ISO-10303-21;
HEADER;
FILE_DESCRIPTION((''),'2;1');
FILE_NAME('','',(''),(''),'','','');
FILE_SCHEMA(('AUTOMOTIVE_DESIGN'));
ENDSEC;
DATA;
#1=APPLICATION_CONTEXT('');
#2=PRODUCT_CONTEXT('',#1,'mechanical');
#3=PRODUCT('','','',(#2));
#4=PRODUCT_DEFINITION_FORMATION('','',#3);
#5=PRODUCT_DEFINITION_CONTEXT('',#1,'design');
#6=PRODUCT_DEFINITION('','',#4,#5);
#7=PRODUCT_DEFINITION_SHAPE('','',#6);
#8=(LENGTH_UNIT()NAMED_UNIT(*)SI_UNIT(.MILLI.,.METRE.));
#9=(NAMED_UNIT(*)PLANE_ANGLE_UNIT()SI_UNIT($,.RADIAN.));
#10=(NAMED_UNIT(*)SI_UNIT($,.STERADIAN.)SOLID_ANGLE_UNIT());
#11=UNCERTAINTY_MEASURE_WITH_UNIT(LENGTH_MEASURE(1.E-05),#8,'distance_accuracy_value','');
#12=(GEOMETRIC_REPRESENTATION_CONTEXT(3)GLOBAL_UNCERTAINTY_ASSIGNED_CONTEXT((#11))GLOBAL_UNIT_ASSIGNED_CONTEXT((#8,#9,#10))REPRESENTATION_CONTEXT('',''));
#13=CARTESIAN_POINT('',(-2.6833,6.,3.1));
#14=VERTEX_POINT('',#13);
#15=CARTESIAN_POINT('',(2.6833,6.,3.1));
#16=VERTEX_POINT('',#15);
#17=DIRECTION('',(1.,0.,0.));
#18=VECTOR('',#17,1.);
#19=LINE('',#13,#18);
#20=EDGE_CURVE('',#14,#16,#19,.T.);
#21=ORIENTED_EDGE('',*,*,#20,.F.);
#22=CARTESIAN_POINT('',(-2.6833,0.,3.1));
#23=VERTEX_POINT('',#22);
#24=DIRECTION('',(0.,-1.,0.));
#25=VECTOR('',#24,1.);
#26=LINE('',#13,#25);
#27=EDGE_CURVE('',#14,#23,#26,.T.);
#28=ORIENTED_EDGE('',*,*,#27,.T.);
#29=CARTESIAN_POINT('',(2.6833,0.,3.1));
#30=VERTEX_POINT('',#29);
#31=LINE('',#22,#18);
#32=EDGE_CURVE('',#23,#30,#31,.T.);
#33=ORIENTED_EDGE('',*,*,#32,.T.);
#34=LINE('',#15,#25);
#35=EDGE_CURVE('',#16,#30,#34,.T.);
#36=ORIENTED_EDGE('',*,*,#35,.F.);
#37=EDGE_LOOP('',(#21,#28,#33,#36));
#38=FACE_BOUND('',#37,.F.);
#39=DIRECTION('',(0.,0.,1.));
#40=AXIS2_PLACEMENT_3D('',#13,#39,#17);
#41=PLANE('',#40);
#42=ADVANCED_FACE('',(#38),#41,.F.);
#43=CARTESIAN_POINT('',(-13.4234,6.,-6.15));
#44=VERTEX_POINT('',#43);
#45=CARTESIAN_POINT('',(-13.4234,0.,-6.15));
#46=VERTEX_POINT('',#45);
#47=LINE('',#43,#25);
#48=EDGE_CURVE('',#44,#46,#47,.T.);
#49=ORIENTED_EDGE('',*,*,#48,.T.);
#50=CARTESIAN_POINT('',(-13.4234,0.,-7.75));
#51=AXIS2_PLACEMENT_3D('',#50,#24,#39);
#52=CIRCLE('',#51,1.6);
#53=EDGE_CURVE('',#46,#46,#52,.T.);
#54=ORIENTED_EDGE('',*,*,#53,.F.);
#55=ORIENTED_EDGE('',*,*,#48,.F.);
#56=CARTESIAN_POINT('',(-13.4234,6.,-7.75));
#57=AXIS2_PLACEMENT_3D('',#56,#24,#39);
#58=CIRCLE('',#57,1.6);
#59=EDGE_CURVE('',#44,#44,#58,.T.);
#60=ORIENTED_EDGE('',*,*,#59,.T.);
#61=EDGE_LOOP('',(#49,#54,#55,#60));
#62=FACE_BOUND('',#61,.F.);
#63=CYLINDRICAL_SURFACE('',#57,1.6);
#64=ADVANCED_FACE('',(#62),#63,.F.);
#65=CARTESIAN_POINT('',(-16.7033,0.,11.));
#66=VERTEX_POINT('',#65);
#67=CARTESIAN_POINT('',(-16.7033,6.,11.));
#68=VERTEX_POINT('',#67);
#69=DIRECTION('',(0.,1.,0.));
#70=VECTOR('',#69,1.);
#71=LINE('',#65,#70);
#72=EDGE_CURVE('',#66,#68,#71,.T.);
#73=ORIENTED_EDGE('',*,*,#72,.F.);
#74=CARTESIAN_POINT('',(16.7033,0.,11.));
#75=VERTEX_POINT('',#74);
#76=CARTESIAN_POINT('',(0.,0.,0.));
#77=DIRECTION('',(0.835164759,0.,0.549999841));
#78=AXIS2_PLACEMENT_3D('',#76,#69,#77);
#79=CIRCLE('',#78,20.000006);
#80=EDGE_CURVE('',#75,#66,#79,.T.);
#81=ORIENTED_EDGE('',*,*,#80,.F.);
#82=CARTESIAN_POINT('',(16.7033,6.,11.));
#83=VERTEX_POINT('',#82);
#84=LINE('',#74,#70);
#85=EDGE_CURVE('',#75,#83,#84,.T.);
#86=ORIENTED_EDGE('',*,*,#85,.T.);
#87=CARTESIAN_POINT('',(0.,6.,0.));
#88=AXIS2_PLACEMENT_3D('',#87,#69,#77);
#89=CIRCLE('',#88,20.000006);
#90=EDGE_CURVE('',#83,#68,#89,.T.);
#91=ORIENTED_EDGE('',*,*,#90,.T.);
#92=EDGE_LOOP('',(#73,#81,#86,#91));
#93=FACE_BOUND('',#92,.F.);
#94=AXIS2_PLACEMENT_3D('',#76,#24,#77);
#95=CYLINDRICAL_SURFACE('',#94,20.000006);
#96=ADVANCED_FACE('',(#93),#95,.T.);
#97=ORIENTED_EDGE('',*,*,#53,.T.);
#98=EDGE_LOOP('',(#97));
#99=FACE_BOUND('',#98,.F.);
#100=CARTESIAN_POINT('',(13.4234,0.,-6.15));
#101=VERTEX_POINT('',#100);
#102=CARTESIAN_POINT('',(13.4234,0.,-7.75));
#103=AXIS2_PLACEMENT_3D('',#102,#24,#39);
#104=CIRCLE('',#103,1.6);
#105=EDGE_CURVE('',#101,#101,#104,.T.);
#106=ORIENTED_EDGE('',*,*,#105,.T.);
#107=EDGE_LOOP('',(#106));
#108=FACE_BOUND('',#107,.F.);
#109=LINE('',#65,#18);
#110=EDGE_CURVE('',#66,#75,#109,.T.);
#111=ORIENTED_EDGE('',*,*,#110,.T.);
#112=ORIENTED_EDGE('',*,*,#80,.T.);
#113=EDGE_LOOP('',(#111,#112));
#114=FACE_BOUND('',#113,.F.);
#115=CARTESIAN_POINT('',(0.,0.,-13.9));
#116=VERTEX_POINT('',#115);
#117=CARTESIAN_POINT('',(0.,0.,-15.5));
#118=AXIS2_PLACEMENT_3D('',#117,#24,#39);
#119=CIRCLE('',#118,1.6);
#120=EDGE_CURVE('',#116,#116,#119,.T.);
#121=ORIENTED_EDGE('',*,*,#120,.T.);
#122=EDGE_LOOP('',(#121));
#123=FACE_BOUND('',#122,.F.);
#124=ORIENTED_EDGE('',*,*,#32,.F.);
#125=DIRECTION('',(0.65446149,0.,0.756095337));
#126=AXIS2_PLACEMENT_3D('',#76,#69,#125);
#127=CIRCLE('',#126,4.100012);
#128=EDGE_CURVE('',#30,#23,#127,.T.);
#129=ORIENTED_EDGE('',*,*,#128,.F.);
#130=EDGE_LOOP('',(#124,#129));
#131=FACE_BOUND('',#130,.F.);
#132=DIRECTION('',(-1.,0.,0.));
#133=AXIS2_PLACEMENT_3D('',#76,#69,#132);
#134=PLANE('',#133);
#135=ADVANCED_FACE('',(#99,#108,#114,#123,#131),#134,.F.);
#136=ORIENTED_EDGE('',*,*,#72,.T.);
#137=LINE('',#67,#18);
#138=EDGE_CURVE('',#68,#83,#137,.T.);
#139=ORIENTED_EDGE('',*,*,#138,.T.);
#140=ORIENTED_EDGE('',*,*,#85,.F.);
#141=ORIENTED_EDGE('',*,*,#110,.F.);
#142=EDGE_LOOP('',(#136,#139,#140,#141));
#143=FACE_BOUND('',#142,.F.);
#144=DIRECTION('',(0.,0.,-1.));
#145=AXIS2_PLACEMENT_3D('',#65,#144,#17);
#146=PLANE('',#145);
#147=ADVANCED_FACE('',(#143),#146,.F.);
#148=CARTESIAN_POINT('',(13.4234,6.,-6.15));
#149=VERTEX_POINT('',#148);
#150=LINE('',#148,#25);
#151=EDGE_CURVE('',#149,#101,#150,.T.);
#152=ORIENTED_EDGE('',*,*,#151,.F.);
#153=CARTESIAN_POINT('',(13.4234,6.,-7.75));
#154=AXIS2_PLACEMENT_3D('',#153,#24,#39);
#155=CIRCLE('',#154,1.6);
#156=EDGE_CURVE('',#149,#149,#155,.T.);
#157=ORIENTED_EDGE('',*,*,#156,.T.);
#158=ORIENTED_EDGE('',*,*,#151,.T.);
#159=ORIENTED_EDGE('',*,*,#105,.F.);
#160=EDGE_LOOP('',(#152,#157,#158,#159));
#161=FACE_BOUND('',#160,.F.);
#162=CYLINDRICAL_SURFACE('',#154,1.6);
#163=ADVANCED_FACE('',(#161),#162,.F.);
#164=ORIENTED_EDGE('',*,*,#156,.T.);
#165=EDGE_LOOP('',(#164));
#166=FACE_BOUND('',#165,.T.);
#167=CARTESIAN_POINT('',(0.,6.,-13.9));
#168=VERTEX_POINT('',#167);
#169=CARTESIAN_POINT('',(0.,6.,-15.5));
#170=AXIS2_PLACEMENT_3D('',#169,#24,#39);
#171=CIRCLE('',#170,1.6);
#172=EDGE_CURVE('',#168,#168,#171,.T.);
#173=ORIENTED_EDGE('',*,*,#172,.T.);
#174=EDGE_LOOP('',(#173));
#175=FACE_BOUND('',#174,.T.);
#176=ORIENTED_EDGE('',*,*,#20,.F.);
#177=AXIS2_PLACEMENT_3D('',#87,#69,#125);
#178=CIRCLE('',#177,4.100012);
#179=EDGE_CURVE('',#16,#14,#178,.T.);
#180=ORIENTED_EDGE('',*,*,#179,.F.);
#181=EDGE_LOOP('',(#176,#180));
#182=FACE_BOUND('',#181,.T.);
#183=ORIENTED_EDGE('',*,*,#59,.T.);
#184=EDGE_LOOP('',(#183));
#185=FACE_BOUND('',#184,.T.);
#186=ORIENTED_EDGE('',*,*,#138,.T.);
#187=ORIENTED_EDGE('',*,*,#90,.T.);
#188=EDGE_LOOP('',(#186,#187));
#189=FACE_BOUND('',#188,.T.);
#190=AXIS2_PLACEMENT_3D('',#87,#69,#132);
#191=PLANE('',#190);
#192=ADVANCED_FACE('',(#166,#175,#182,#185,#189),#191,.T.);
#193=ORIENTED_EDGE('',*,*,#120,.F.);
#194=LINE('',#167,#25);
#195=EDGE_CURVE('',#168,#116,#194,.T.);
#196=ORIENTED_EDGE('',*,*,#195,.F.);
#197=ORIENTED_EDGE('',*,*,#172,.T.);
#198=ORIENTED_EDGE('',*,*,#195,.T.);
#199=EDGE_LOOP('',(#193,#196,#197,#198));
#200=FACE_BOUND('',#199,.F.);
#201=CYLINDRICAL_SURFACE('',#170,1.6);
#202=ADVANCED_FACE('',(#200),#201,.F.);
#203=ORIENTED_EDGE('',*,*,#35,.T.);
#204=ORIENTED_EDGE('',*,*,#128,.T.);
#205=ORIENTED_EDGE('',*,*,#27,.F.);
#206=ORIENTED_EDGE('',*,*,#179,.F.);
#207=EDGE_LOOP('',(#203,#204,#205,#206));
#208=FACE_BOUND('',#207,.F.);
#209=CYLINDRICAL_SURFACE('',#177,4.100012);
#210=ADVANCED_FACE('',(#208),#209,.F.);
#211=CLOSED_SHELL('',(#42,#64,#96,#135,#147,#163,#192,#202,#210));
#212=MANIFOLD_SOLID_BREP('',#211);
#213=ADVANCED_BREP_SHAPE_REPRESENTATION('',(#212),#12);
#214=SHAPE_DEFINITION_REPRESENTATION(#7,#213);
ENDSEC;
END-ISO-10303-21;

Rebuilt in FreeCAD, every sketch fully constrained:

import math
import FreeCAD as App
import Part
import Sketcher

V = App.Vector
Q = App.Units.Quantity

doc = App.newDocument("Part")
params = doc.addObject("Spreadsheet::Sheet", "Params")
for row, (alias, value) in enumerate([
    ("sketch1_radius", "20 mm"),
    ("pad1_length", "6 mm"),
    ("sketch2_radius", "4.1 mm"),
    ("pocket1_length", "6 mm"),
    ("sketch3_diameter", "3.2 mm"),
    ("hole_diameter", "3.2 mm"),
], start=1):
    params.set(f"A{row}", alias)
    params.set(f"B{row}", "=" + value)
    params.setAlias(f"B{row}", alias)

body = doc.addObject("PartDesign::Body", "Body")

sketch1 = doc.addObject("Sketcher::SketchObject", "Sketch")
body.addObject(sketch1)
sketch1.AttachmentSupport = (doc.XZ_Plane, [""])
sketch1.MapMode = "FlatFace"
sketch1.addGeometry([
    Part.LineSegment(V(-17, 11, 0), V(17, 11, 0)),
    Part.ArcOfCircle(Part.Circle(V(0, 0, 0), V(0, 0, 1), 20), math.radians(147), math.radians(393)),
], False)
sketch1.addConstraint([
    Sketcher.Constraint("Coincident", 0, 1, 1, 1),
    Sketcher.Constraint("Coincident", 1, 2, 0, 2),
    Sketcher.Constraint("Horizontal", 0),
    Sketcher.Constraint("Coincident", 1, 3, -1, 1),
    Sketcher.Constraint("Radius", 1, Q("20 mm")),
    Sketcher.Constraint("DistanceY", -1, 1, 0, 1, Q("11 mm")),
])
sketch1.setExpression("Constraints[4]", "Params.sketch1_radius")
pad1 = doc.addObject("PartDesign::Pad", "Pad")
body.addObject(pad1)
pad1.Profile = sketch1
pad1.setExpression("Length", "Params.pad1_length")
pad1.Reversed = True

sketch2 = doc.addObject("Sketcher::SketchObject", "Sketch001")
body.addObject(sketch2)
sketch2.AttachmentSupport = (doc.XZ_Plane, [""])
sketch2.MapMode = "FlatFace"
sketch2.AttachmentOffset = App.Placement(V(0, 0, -6), App.Rotation())
sketch2.addGeometry([
    Part.LineSegment(V(-2.7, 3.1, 0), V(2.7, 3.1, 0)),
    Part.ArcOfCircle(Part.Circle(V(0, 0, 0), V(0, 0, 1), 4.1), math.radians(131), math.radians(409)),
], False)
sketch2.addConstraint([
    Sketcher.Constraint("Coincident", 0, 1, 1, 1),
    Sketcher.Constraint("Coincident", 1, 2, 0, 2),
    Sketcher.Constraint("Horizontal", 0),
    Sketcher.Constraint("Coincident", 1, 3, -1, 1),
    Sketcher.Constraint("Radius", 1, Q("4.1 mm")),
    Sketcher.Constraint("DistanceY", -1, 1, 0, 1, Q("3.1 mm")),
])
sketch2.setExpression("Constraints[4]", "Params.sketch2_radius")
pocket1 = doc.addObject("PartDesign::Pocket", "Pocket")
body.addObject(pocket1)
pocket1.Profile = sketch2
pocket1.setExpression("Length", "Params.pocket1_length")
pocket1.Reversed = True

sketch3 = doc.addObject("Sketcher::SketchObject", "Sketch002")
body.addObject(sketch3)
sketch3.AttachmentSupport = (doc.XZ_Plane, [""])
sketch3.MapMode = "FlatFace"
sketch3.AttachmentOffset = App.Placement(V(0, 0, -6), App.Rotation())
sketch3.addGeometry([
    Part.Circle(V(0, -15.5, 0), V(0, 0, 1), 1.6),
    Part.Circle(V(-13.4, -7.8, 0), V(0, 0, 1), 1.6),
    Part.Circle(V(13.4, -7.8, 0), V(0, 0, 1), 1.6),
], False)
sketch3.addConstraint([
    Sketcher.Constraint("Equal", 0, 1),
    Sketcher.Constraint("Equal", 1, 2),
    Sketcher.Constraint("Symmetric", 1, 3, 2, 3, -2),
    Sketcher.Constraint("PointOnObject", 0, 3, -2),
    Sketcher.Constraint("Diameter", 0, Q("3.2 mm")),
    Sketcher.Constraint("DistanceY", 0, 3, -1, 1, Q("15.5 mm")),
    Sketcher.Constraint("DistanceY", 1, 3, -1, 1, Q("7.75 mm")),
    Sketcher.Constraint("DistanceX", 1, 3, -1, 1, Q("13.4234 mm")),
])
sketch3.setExpression("Constraints[4]", "Params.sketch3_diameter")
doc.recompute()
hole = doc.addObject("PartDesign::Hole", "Hole")
body.addObject(hole)
hole.Profile = sketch3
hole.ThreadType = "None"
hole.setExpression("Diameter", "Params.hole_diameter")
hole.DepthType = "ThroughAll"
hole.Reversed = True

doc.recompute()
